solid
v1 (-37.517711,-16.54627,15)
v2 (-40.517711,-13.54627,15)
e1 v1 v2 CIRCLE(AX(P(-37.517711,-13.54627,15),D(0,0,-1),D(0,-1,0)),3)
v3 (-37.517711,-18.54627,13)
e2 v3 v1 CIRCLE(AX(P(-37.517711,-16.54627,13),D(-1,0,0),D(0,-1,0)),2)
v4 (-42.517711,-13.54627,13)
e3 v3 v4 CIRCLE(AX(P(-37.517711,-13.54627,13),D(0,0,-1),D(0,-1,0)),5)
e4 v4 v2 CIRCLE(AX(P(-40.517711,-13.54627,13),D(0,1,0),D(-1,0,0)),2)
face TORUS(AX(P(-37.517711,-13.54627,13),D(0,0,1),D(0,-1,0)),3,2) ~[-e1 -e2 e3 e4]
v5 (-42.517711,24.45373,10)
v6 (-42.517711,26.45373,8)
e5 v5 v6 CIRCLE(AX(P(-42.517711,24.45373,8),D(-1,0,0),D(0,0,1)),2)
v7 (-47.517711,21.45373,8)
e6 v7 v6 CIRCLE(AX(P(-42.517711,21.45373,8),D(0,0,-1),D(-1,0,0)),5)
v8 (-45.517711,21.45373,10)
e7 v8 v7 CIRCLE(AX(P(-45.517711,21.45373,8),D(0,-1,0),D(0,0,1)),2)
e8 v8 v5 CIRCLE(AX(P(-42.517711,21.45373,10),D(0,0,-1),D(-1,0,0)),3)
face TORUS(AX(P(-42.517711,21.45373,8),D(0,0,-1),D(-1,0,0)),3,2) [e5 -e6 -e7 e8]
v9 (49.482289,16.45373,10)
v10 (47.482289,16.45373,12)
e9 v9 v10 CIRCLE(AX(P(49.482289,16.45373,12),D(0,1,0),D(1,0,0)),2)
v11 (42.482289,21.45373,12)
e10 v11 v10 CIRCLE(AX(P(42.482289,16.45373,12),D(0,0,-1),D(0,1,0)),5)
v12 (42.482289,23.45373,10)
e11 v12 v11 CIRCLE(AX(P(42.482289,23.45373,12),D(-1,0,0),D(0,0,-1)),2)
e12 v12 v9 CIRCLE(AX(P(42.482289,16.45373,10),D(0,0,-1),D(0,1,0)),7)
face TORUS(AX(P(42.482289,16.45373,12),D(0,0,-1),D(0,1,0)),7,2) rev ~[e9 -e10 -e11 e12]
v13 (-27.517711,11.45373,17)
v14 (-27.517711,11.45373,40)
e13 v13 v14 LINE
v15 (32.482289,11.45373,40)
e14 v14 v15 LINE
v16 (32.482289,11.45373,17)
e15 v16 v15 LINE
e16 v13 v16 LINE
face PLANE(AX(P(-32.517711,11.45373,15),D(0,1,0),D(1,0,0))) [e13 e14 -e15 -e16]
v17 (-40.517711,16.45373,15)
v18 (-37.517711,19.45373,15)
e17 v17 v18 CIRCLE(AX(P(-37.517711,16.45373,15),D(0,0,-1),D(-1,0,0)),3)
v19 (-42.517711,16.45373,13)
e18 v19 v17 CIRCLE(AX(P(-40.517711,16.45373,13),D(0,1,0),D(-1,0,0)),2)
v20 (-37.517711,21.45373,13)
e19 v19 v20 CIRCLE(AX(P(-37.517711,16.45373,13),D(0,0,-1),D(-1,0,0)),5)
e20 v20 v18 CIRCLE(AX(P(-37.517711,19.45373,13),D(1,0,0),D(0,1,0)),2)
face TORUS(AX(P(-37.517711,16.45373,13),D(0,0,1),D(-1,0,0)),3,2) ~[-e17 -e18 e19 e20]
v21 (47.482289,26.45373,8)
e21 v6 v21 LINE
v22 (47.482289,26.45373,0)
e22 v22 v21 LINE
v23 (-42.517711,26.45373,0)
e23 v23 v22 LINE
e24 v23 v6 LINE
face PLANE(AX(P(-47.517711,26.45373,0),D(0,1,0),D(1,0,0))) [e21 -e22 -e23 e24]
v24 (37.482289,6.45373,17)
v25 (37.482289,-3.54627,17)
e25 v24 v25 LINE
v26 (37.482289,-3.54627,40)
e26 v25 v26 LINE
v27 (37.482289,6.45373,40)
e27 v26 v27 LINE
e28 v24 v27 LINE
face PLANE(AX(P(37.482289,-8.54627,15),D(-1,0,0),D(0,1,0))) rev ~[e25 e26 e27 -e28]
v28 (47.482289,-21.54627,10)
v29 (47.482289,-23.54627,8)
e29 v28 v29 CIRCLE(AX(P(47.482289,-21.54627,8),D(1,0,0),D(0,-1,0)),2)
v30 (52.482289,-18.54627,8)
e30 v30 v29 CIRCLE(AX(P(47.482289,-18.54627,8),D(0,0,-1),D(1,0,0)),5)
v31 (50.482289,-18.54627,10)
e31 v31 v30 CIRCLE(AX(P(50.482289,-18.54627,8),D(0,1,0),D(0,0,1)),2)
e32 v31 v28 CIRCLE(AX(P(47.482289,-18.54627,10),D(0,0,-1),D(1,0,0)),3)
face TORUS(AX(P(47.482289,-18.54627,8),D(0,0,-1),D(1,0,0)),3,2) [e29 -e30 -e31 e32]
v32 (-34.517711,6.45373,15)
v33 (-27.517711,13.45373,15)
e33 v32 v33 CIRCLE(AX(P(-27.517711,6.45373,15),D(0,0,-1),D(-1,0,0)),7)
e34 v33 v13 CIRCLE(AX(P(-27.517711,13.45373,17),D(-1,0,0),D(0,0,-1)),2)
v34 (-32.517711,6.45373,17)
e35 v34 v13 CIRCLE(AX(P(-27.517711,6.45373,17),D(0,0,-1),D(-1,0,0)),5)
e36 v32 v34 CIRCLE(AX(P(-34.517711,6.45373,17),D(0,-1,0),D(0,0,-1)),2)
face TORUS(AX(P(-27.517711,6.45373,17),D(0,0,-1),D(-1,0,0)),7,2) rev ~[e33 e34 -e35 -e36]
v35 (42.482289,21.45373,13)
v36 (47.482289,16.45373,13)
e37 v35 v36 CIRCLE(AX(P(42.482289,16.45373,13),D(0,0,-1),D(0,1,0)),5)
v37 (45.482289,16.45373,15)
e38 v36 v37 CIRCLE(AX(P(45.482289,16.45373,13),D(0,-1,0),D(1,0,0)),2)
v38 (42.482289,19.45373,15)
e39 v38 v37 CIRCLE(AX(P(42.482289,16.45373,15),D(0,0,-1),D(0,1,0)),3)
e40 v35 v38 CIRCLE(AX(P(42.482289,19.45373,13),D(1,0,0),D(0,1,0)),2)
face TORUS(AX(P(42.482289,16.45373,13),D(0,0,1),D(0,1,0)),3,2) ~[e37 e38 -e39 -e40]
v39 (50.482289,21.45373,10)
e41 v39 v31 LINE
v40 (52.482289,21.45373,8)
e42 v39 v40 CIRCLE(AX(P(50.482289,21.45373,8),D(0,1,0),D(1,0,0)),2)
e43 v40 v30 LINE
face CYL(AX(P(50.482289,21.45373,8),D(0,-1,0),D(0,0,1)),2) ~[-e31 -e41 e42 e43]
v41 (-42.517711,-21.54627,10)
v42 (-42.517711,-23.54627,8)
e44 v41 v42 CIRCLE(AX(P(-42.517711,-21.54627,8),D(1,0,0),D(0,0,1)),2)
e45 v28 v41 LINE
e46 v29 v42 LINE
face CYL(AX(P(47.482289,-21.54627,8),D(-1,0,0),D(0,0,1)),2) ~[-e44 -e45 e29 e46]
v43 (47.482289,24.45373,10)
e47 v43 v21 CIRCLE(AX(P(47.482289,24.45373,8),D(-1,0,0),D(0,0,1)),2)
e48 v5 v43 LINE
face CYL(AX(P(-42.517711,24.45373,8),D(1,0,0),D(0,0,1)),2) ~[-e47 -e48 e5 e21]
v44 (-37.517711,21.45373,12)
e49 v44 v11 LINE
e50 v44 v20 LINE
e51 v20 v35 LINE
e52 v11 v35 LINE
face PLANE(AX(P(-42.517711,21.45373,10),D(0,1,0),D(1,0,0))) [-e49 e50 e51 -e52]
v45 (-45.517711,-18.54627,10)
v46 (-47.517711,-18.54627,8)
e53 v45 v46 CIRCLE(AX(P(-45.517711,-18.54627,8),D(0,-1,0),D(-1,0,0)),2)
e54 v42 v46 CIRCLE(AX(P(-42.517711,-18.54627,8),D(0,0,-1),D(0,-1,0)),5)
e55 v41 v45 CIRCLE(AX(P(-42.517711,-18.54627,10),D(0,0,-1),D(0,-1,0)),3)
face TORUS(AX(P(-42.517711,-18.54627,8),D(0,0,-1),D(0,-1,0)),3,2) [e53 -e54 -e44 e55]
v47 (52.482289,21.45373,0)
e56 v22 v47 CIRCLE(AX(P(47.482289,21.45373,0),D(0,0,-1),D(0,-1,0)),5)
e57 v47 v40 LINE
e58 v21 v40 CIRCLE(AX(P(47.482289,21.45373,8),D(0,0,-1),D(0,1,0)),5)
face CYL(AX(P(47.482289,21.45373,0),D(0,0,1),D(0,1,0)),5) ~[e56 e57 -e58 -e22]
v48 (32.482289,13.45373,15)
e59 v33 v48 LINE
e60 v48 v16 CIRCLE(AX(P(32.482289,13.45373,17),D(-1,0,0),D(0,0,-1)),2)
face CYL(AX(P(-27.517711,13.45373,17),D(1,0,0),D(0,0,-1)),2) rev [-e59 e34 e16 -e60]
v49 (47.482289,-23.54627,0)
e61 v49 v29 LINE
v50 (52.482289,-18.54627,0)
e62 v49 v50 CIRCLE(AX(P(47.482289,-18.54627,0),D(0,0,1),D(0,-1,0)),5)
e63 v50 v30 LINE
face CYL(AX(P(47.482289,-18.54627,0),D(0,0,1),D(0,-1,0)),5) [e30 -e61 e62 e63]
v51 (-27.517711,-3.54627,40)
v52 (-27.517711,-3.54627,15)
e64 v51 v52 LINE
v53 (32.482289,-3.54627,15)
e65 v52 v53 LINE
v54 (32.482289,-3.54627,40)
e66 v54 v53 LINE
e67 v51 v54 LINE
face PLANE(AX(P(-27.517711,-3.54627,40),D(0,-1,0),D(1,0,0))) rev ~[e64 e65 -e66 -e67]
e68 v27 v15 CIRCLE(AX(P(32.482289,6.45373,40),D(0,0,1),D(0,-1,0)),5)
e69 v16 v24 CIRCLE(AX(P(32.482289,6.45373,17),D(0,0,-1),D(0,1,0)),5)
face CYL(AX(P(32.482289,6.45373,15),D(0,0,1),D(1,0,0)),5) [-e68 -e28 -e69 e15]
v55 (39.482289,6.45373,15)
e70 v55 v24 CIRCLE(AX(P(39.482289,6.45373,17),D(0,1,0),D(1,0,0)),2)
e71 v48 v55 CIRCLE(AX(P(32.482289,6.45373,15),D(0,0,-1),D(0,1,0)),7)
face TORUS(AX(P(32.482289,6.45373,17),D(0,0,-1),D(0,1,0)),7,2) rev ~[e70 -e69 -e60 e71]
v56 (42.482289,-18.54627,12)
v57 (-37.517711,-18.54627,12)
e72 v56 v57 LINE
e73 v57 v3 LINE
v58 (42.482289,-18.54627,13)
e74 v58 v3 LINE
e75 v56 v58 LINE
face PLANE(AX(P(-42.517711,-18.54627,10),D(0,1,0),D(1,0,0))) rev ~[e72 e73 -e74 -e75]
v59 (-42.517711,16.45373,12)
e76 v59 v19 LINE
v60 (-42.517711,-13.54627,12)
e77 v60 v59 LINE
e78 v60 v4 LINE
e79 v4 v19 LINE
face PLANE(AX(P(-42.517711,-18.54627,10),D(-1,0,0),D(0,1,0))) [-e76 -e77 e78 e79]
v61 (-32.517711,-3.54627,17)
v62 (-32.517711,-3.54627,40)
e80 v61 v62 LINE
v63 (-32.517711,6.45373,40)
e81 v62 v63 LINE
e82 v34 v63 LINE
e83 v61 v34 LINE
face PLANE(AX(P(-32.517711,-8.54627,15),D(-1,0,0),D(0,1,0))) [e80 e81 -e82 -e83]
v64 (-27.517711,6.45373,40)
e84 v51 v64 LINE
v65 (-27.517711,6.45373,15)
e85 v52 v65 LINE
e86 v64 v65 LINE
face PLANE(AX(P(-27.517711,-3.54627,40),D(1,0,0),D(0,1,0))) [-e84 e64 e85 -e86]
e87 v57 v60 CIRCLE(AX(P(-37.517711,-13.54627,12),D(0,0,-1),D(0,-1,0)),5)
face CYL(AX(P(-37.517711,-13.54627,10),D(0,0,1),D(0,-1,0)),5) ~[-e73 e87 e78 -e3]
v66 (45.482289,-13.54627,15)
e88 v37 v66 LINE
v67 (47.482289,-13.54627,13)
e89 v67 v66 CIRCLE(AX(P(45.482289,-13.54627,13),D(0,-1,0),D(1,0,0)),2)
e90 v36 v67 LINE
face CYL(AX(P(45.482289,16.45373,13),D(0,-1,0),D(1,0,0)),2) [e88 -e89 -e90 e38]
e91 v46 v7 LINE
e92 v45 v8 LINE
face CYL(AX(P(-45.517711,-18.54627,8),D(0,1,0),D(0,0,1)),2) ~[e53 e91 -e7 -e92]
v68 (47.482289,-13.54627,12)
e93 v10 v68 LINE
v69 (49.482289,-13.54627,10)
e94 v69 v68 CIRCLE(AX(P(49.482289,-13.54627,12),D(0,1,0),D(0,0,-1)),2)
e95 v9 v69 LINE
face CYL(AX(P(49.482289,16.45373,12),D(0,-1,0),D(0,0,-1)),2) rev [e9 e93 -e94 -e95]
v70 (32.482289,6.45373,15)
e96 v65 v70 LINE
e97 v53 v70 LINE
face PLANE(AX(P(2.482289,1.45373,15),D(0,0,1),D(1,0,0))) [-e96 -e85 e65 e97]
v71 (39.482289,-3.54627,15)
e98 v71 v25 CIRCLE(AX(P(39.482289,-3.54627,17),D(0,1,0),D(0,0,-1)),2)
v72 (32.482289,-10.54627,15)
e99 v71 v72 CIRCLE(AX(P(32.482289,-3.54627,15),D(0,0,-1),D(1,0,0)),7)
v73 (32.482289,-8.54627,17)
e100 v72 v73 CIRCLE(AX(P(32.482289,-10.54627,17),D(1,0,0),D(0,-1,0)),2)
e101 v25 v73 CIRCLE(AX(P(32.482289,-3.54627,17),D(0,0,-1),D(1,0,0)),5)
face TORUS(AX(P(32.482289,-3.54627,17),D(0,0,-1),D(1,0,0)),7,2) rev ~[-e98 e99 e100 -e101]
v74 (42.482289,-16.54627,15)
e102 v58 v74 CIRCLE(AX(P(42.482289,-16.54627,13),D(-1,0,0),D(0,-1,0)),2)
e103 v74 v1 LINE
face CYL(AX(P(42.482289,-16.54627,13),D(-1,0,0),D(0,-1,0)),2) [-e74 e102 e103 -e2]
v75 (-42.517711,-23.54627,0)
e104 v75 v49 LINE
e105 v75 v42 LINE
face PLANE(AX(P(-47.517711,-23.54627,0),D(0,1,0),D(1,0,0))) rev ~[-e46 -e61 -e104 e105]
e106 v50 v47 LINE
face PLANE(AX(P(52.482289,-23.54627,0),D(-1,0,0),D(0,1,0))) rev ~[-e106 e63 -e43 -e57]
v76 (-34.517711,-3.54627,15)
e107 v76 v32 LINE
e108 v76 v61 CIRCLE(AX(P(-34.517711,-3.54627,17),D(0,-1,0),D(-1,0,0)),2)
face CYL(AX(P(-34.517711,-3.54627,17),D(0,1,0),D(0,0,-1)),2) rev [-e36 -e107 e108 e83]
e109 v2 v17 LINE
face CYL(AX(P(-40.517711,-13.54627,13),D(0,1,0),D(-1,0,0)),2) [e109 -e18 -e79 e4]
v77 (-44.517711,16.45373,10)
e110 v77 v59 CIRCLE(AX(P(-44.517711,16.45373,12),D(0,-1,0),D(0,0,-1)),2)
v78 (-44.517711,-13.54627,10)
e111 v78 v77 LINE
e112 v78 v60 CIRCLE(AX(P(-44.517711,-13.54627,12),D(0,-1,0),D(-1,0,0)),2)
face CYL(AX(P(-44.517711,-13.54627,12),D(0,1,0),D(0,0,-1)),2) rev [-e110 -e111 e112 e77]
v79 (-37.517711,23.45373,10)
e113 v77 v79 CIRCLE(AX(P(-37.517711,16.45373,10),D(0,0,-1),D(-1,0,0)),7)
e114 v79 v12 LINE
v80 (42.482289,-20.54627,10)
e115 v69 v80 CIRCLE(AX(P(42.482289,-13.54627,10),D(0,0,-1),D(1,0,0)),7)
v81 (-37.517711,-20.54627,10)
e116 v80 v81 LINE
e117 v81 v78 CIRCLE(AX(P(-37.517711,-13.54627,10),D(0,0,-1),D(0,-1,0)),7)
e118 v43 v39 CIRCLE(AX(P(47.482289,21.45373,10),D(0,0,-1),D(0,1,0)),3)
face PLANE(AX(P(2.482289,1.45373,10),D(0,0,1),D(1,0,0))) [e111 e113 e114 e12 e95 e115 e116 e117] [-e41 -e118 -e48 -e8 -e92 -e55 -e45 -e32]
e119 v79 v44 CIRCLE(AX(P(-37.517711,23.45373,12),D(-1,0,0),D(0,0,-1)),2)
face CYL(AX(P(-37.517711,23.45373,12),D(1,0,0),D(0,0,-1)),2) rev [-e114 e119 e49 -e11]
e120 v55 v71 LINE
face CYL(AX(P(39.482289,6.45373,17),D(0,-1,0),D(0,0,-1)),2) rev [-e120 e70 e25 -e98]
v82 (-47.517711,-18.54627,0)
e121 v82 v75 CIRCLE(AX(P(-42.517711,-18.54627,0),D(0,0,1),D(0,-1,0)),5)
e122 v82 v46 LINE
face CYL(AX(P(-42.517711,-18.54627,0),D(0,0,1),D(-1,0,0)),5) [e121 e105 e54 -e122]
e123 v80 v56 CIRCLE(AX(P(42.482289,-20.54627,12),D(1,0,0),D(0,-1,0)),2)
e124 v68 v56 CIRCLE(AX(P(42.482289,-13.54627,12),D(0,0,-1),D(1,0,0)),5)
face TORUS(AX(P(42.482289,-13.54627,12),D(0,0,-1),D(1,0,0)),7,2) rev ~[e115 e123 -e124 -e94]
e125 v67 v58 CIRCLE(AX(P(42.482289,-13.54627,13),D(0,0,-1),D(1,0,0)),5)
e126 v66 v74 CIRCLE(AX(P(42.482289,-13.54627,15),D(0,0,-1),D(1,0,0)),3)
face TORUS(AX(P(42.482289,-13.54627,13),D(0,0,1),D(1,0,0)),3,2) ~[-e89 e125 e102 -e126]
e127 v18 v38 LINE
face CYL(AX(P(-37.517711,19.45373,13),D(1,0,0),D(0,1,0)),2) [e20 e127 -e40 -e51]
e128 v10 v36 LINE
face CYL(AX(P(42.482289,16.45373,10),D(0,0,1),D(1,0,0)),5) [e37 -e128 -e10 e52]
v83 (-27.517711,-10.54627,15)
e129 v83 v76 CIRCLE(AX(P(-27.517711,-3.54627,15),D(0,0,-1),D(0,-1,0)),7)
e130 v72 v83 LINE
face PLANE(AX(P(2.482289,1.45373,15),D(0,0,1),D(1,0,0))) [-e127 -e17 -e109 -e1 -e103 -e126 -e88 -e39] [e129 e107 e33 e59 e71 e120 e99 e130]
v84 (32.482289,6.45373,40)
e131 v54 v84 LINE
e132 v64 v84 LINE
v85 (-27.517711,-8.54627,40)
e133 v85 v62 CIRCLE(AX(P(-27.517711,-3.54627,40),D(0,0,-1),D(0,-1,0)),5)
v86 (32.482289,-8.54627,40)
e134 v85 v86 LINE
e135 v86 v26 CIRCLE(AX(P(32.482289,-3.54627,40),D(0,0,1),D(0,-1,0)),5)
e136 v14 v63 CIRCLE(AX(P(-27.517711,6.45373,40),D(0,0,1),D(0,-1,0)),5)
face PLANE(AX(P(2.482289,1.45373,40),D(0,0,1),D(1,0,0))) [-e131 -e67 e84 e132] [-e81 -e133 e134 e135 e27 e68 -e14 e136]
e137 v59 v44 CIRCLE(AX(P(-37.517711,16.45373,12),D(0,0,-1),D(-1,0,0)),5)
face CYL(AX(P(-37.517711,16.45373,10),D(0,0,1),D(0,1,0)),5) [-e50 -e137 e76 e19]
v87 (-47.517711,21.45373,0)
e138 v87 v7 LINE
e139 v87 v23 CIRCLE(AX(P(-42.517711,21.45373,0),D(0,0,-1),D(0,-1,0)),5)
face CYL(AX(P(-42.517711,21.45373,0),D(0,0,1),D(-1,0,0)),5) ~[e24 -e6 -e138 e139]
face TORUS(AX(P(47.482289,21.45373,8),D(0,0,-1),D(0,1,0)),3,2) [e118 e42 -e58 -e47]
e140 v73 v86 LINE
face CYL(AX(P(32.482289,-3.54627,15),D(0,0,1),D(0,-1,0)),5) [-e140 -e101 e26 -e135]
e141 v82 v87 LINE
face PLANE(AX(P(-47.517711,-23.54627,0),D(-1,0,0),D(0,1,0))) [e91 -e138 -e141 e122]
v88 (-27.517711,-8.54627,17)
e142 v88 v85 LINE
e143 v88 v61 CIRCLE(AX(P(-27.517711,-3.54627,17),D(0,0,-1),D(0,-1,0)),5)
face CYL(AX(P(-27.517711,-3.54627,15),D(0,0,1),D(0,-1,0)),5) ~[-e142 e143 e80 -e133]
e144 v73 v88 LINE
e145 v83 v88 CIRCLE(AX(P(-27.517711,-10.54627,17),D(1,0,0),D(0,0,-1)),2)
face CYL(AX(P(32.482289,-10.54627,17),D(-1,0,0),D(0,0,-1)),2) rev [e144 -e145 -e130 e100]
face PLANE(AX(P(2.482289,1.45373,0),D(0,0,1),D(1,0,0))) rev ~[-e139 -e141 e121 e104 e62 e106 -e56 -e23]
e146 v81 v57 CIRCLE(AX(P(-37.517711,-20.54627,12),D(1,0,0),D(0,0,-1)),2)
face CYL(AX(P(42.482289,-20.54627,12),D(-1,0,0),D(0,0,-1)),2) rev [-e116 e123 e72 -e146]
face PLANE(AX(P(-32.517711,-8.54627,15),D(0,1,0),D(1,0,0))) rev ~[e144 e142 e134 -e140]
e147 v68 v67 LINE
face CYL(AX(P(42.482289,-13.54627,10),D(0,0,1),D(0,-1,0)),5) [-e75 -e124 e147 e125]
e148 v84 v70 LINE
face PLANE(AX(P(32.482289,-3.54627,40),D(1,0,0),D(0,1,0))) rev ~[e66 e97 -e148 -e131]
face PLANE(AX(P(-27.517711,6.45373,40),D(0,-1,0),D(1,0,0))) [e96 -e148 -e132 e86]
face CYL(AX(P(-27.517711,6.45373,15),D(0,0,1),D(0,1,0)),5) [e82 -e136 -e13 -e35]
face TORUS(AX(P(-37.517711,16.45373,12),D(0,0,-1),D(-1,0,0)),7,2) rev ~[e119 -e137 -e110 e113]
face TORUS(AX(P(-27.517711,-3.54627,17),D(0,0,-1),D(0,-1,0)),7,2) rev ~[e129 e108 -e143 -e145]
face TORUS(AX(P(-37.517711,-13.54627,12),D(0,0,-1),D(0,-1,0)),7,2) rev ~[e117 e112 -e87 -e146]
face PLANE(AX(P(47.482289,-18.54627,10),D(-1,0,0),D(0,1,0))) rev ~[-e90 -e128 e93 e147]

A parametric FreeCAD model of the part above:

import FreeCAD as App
import Part
import Sketcher

V = App.Vector


def edges_at(feature, points):
    """Names of the edges that pass closest to the given points."""
    edges = feature.Shape.Edges
    near = lambda p: min(range(len(edges)), key=lambda i: edges[i].distToShape(Part.Vertex(*p))[0])
    return sorted({f"Edge{near(p) + 1}" for p in points})


def add_polygon(sketch, points):
    """Adds a closed chain of lines whose ends are joined by coincident constraints."""
    first, n = sketch.GeometryCount, len(points)
    for a, b in zip(points, points[1:] + points[:1]):
        sketch.addGeometry(Part.LineSegment(App.Vector(*a, 0), App.Vector(*b, 0)), False)
    for i in range(n):
        sketch.addConstraint(Sketcher.Constraint("Coincident", first + i, 2, first + (i + 1) % n, 1))

doc = App.newDocument("Part")
body = doc.addObject("PartDesign::Body", "Body")

sketch1 = body.newObject("Sketcher::SketchObject", "Sketch")
sketch1.AttachmentSupport = (doc.getObject("XY_Plane"), [""])
sketch1.MapMode = "FlatFace"
add_polygon(sketch1, [(-48, 26), (-48, -24), (52, -24), (52, 26)])
sketch1.addConstraint([
    Sketcher.Constraint("Vertical", 0),
    Sketcher.Constraint("Horizontal", 1),
    Sketcher.Constraint("Vertical", 2),
    Sketcher.Constraint("Horizontal", 3),
    Sketcher.Constraint("DistanceX", 1, 1, 1, 2, 100.0),
    Sketcher.Constraint("DistanceY", 0, 2, 0, 1, 50.0),
    Sketcher.Constraint("DistanceX", 0, 2, -1, 1, 47.517711),
    Sketcher.Constraint("DistanceY", 0, 2, -1, 1, 23.54627),
])
pad1 = body.newObject("PartDesign::Pad", "Pad")
pad1.Profile = sketch1
pad1.Length = 10

sketch2 = body.newObject("Sketcher::SketchObject", "Sketch001")
sketch2.AttachmentSupport = (doc.getObject("XY_Plane"), [""])
sketch2.MapMode = "FlatFace"
sketch2.AttachmentOffset = App.Placement(V(0, 0, 10), App.Rotation())
add_polygon(sketch2, [(-43, 21), (-43, -19), (47, -19), (47, 21)])
sketch2.addConstraint([
    Sketcher.Constraint("Vertical", 0),
    Sketcher.Constraint("Horizontal", 1),
    Sketcher.Constraint("Vertical", 2),
    Sketcher.Constraint("Horizontal", 3),
    Sketcher.Constraint("DistanceX", 1, 1, 1, 2, 90.0),
    Sketcher.Constraint("DistanceY", 0, 2, 0, 1, 40.0),
    Sketcher.Constraint("DistanceX", 0, 2, -1, 1, 42.517711),
    Sketcher.Constraint("DistanceY", 0, 2, -1, 1, 18.54627),
])
pad2 = body.newObject("PartDesign::Pad", "Pad001")
pad2.Profile = sketch2
pad2.Length = 5

sketch3 = body.newObject("Sketcher::SketchObject", "Sketch002")
sketch3.AttachmentSupport = (doc.getObject("XY_Plane"), [""])
sketch3.MapMode = "FlatFace"
sketch3.AttachmentOffset = App.Placement(V(0, 0, 15), App.Rotation())
add_polygon(sketch3, [(-33, 11), (-33, -9), (37, -9), (37, 11)])
sketch3.addConstraint([
    Sketcher.Constraint("Vertical", 0),
    Sketcher.Constraint("Horizontal", 1),
    Sketcher.Constraint("Vertical", 2),
    Sketcher.Constraint("Horizontal", 3),
    Sketcher.Constraint("DistanceX", 1, 1, 1, 2, 70.0),
    Sketcher.Constraint("DistanceY", 0, 2, 0, 1, 20.0),
    Sketcher.Constraint("DistanceX", 0, 2, -1, 1, 32.517711),
    Sketcher.Constraint("DistanceY", 0, 2, -1, 1, 8.54627),
])
pad3 = body.newObject("PartDesign::Pad", "Pad002")
pad3.Profile = sketch3
pad3.Length = 25

sketch4 = body.newObject("Sketcher::SketchObject", "Sketch003")
sketch4.AttachmentSupport = (doc.getObject("XY_Plane"), [""])
sketch4.MapMode = "FlatFace"
sketch4.AttachmentOffset = App.Placement(V(0, 0, 40), App.Rotation())
add_polygon(sketch4, [(-28, 6), (-28, -4), (32, -4), (32, 6)])
sketch4.addConstraint([
    Sketcher.Constraint("Vertical", 0),
    Sketcher.Constraint("Horizontal", 1),
    Sketcher.Constraint("Vertical", 2),
    Sketcher.Constraint("Horizontal", 3),
    Sketcher.Constraint("DistanceX", 1, 1, 1, 2, 60.0),
    Sketcher.Constraint("DistanceY", 0, 2, 0, 1, 10.0),
    Sketcher.Constraint("DistanceX", 0, 2, -1, 1, 27.517711),
    Sketcher.Constraint("DistanceY", 0, 2, -1, 1, 3.54627),
])
pocket1 = body.newObject("PartDesign::Pocket", "Pocket")
pocket1.Profile = sketch4
pocket1.Length = 25
doc.recompute()

fillet = body.newObject("PartDesign::Fillet", "Fillet")
fillet.Base = (pocket1, edges_at(pocket1, [
    (37.482, -8.546, 27.5),
    (37.482, 11.454, 27.5),
    (-32.518, -8.546, 27.5),
    (-32.518, 11.454, 27.5),
]))
fillet.Radius = 5
doc.recompute()

fillet2 = body.newObject("PartDesign::Fillet", "Fillet001")
fillet2.Base = (fillet, edges_at(fillet, [
    (52.482, 26.454, 5),
    (-47.518, -23.546, 5),
    (-47.518, 26.454, 5),
    (52.482, -23.546, 5),
]))
fillet2.Radius = 5
doc.recompute()

fillet3 = body.newObject("PartDesign::Fillet", "Fillet002")
fillet3.Base = (fillet2, edges_at(fillet2, [
    (47.482, -18.546, 12.5),
    (-42.518, -18.546, 12.5),
    (47.482, 21.454, 12.5),
    (-42.518, 21.454, 12.5),
]))
fillet3.Radius = 5
doc.recompute()

fillet4 = body.newObject("PartDesign::Fillet", "Fillet003")
fillet4.Base = (fillet3, edges_at(fillet3, [
    (2.482, 11.454, 15),
    (2.482, 21.454, 15),
    (2.482, 21.454, 10),
    (2.482, 26.454, 10),
]))
fillet4.Radius = 2

doc.recompute()
